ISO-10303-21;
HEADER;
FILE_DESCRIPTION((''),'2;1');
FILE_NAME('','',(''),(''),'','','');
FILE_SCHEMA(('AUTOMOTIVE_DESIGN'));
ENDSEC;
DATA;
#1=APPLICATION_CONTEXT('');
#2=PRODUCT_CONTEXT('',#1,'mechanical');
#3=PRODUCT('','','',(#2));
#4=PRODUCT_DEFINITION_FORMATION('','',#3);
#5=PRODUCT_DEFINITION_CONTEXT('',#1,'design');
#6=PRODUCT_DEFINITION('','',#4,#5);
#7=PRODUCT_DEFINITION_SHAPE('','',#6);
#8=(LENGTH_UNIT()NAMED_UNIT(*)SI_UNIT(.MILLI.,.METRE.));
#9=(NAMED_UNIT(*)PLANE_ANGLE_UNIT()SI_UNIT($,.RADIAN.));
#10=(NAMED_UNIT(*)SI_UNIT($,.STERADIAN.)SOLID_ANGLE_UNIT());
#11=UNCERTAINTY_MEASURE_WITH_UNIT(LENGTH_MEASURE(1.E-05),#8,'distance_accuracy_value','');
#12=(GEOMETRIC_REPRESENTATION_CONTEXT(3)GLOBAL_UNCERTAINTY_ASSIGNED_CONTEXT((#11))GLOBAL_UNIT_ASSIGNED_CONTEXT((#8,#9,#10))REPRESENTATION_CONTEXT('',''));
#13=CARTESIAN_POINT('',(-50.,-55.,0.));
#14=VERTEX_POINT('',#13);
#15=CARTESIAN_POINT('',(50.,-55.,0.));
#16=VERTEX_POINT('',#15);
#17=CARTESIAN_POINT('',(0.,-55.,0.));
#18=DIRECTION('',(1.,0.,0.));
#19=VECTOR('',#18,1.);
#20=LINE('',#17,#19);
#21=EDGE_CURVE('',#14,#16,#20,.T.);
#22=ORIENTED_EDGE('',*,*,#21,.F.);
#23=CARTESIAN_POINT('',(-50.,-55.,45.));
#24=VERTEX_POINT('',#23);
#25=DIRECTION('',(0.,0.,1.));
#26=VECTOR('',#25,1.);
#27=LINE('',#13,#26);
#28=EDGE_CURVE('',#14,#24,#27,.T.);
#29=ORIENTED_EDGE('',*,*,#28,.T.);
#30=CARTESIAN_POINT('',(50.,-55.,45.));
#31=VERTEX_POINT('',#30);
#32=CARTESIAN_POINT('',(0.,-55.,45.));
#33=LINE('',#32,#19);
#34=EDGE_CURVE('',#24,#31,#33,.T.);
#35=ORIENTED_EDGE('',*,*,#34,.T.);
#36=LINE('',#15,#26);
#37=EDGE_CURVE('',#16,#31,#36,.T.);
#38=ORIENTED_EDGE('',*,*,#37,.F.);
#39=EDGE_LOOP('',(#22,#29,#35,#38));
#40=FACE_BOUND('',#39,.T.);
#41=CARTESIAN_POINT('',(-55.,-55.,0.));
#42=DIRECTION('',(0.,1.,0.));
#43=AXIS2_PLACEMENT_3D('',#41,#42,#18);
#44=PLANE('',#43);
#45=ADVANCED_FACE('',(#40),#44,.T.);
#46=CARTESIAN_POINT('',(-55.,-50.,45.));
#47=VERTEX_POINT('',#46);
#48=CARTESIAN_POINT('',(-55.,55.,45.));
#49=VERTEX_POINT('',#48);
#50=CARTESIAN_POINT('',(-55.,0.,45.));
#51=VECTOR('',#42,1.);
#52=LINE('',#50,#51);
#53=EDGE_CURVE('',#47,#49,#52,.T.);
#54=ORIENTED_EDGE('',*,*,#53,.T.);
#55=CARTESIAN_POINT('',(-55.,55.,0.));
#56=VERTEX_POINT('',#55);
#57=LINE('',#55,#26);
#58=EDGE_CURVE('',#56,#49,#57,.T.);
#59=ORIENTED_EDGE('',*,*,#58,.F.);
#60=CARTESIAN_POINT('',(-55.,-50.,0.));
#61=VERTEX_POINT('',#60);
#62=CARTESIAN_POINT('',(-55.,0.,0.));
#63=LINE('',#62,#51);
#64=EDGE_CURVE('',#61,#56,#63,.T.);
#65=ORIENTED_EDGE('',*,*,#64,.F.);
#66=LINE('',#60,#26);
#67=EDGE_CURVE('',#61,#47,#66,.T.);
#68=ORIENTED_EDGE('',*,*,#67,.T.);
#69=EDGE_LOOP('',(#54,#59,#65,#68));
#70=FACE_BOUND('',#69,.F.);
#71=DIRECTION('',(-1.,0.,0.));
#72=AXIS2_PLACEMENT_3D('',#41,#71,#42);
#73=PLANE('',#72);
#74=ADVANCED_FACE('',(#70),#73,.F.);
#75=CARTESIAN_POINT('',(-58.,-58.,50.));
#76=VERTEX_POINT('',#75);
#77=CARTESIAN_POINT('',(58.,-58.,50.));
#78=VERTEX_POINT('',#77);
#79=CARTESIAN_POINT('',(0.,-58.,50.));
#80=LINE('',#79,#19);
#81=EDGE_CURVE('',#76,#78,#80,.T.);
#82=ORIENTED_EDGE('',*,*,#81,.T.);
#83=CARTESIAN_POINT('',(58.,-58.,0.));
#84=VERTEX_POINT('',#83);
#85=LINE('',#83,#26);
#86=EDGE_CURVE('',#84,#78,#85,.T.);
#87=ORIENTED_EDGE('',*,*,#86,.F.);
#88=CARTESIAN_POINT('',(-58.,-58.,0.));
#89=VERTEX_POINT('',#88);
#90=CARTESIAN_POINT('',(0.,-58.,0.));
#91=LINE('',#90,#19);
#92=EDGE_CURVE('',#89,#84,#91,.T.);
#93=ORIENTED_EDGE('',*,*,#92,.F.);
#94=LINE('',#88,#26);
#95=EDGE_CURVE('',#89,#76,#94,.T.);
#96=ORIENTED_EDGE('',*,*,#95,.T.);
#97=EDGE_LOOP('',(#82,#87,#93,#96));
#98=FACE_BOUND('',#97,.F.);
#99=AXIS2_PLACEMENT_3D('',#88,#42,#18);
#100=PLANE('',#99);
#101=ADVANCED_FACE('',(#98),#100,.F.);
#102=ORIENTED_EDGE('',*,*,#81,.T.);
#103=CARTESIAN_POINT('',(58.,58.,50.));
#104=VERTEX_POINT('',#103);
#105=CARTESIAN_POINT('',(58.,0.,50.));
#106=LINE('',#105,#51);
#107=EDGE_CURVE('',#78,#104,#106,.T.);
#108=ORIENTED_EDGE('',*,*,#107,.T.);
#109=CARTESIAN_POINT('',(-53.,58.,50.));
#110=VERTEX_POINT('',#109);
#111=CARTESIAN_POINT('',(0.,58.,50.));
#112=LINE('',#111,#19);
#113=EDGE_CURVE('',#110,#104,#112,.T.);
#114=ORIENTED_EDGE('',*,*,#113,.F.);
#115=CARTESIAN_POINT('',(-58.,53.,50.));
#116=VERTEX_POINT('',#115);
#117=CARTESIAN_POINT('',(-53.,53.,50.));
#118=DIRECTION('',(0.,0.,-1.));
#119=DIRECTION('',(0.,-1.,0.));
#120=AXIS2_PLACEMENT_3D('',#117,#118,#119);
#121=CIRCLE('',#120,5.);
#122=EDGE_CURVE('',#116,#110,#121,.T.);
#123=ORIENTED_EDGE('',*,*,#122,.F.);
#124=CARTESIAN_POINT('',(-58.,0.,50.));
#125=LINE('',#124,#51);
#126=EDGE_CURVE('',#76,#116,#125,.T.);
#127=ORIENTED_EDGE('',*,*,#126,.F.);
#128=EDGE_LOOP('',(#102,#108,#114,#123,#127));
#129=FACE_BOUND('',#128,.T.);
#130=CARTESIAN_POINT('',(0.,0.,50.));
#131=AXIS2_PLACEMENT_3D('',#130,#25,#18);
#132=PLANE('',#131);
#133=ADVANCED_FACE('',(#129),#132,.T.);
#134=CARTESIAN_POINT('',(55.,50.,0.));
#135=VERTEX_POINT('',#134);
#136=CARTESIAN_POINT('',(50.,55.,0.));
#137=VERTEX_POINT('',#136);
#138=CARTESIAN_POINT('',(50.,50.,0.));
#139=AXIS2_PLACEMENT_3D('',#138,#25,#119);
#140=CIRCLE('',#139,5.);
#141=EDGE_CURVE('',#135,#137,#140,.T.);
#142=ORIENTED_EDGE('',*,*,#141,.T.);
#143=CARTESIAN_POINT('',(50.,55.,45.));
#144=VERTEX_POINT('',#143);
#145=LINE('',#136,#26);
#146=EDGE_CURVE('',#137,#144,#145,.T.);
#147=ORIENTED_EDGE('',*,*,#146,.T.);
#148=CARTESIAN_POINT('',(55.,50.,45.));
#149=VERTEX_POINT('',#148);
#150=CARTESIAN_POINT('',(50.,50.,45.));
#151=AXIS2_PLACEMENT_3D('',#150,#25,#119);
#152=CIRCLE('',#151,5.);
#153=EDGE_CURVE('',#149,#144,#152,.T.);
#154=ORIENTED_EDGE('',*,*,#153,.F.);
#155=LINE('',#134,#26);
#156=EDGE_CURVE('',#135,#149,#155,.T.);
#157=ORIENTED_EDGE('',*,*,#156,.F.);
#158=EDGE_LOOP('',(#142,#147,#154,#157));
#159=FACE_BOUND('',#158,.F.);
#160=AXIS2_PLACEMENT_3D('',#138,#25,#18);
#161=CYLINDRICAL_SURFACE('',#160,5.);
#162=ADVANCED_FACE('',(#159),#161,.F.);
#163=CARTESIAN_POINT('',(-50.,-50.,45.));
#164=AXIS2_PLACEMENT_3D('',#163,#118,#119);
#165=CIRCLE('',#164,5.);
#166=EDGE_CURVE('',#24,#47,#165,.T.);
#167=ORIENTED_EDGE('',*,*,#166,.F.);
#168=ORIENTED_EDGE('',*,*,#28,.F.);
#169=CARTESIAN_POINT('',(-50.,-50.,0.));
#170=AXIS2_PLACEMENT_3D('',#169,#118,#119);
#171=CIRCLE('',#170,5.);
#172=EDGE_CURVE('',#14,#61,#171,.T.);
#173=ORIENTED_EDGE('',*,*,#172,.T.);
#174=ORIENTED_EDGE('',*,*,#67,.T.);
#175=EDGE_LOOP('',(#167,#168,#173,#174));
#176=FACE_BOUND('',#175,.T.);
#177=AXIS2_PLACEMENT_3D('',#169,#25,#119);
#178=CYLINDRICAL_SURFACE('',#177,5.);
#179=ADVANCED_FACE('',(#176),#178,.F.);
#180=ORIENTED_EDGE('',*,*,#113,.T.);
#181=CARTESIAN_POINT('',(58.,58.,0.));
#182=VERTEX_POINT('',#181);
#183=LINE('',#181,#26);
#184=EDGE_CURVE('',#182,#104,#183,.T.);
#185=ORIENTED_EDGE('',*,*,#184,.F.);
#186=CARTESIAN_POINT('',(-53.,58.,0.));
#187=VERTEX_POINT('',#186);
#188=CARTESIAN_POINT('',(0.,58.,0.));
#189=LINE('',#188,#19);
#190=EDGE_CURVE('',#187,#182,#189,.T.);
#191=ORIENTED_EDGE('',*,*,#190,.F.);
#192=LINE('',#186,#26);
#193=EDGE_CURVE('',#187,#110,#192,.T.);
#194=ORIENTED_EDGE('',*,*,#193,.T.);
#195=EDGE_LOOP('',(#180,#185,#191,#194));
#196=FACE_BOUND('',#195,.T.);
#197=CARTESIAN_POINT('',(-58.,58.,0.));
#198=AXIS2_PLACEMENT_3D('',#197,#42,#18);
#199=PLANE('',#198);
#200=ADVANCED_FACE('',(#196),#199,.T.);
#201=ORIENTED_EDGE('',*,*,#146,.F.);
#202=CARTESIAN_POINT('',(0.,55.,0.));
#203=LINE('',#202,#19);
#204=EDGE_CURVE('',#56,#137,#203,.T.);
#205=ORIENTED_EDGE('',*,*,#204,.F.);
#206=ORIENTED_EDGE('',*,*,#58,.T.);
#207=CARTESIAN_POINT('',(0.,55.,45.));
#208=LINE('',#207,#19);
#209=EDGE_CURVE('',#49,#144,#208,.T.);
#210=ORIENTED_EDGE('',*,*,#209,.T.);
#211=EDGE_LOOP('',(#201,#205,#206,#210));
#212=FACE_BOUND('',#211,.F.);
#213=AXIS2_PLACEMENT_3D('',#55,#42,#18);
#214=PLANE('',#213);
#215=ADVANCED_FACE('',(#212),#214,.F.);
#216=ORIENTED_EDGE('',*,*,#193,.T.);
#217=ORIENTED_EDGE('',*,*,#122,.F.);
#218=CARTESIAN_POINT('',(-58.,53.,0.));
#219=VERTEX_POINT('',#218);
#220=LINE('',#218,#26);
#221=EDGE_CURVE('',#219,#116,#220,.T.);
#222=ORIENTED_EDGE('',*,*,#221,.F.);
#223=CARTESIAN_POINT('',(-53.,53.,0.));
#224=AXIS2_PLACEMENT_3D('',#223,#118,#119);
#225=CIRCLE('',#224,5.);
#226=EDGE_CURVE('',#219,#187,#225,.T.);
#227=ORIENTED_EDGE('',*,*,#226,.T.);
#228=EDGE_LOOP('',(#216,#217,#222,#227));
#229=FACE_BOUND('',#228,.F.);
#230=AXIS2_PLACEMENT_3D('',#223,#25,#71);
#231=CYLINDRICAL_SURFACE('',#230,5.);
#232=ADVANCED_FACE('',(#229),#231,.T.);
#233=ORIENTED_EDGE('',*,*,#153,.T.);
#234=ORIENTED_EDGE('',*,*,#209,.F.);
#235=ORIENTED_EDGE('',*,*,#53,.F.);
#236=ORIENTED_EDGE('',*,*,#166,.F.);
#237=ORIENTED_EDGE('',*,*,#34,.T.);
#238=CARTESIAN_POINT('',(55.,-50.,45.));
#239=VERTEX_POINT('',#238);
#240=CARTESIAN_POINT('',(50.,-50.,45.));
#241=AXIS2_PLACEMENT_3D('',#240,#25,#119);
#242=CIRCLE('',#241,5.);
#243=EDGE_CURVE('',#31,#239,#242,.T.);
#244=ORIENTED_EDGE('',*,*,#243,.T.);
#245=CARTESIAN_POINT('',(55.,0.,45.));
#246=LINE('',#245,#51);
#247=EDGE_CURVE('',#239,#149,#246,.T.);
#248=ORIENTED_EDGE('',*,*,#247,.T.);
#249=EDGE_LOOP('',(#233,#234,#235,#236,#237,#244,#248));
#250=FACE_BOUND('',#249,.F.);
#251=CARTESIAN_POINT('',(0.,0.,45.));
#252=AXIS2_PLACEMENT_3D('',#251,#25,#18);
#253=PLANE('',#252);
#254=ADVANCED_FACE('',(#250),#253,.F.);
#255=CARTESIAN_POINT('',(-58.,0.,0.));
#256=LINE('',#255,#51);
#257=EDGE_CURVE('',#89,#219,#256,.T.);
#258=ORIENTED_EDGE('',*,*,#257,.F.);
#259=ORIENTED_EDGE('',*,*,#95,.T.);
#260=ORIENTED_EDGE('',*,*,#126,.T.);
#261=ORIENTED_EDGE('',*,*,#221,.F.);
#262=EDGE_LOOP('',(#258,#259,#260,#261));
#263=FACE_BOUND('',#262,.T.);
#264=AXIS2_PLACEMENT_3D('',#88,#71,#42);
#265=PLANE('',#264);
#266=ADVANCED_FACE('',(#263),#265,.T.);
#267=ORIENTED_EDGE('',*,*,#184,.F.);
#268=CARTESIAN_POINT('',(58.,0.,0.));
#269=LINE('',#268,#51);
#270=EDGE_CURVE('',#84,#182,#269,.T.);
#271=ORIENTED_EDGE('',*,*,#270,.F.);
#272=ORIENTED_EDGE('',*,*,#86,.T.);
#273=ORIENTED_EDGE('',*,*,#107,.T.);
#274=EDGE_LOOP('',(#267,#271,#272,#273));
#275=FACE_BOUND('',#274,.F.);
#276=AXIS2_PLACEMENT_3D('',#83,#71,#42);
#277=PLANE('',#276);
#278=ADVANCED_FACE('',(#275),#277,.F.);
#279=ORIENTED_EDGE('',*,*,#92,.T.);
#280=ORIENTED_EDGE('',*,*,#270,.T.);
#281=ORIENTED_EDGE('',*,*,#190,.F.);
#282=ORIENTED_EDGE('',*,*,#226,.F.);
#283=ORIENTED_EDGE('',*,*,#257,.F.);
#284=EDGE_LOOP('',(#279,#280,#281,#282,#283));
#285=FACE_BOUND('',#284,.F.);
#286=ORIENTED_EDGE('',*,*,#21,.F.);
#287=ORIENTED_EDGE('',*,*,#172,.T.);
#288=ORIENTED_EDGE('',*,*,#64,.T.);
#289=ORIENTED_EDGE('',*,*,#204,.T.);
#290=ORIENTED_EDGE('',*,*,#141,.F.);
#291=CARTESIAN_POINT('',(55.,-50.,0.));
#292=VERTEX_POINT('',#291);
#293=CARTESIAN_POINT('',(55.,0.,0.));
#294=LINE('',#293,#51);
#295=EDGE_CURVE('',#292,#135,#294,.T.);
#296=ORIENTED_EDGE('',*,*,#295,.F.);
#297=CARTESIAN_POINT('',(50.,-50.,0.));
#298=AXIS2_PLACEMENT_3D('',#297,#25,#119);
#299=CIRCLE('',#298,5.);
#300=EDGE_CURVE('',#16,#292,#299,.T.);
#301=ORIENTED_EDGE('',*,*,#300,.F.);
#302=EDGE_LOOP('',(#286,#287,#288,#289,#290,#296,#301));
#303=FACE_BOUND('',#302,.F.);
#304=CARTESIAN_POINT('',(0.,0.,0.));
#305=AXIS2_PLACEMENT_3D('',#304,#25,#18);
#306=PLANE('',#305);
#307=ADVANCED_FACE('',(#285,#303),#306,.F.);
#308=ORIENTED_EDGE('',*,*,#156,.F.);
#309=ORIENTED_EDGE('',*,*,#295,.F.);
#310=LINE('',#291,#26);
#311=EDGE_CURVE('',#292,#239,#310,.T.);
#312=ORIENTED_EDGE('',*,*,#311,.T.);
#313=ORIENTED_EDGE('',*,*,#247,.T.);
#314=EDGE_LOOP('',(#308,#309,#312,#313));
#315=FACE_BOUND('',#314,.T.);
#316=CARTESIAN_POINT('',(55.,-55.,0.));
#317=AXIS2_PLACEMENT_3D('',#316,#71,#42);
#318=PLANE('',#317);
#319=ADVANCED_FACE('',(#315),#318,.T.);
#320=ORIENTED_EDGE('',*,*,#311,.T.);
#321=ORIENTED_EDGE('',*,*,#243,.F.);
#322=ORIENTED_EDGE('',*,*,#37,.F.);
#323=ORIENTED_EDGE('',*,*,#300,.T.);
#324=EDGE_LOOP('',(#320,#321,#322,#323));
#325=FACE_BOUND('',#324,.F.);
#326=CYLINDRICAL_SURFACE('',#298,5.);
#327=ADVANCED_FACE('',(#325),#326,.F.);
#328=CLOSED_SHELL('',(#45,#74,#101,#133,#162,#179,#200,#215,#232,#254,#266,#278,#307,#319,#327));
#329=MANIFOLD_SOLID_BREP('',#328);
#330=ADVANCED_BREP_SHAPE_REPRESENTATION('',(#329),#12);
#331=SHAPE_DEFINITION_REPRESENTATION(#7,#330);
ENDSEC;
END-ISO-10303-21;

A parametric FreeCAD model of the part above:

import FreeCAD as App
import Part
import Sketcher
from FreeCAD import Vector


def edges_at(feature, points):
    """Names of the edges that pass closest to the given points."""
    edges = feature.Shape.Edges
    near = lambda p: min(range(len(edges)), key=lambda i: edges[i].distToShape(Part.Vertex(*p))[0])
    return sorted({f"Edge{near(p) + 1}" for p in points})

doc = App.newDocument("Part")
body = doc.addObject("PartDesign::Body", "Body")

# Sketch on XY plane
sketch1 = body.newObject("Sketcher::SketchObject", "Sketch")
sketch1.AttachmentSupport = (doc.getObject("XY_Plane"), [""])
sketch1.MapMode = "FlatFace"
sketch1.addGeometry(Part.LineSegment(Vector(-58, 58, 0), Vector(-58, -58, 0)), False)
sketch1.addGeometry(Part.LineSegment(Vector(-58, -58, 0), Vector(58, -58, 0)), False)
sketch1.addGeometry(Part.LineSegment(Vector(58, -58, 0), Vector(58, 58, 0)), False)
sketch1.addGeometry(Part.LineSegment(Vector(58, 58, 0), Vector(-58, 58, 0)), False)
sketch1.addConstraint(Sketcher.Constraint("Coincident", 0, 2, 1, 1))
sketch1.addConstraint(Sketcher.Constraint("Coincident", 1, 2, 2, 1))
sketch1.addConstraint(Sketcher.Constraint("Coincident", 2, 2, 3, 1))
sketch1.addConstraint(Sketcher.Constraint("Coincident", 3, 2, 0, 1))
sketch1.addConstraint(Sketcher.Constraint("Vertical", 0))
sketch1.addConstraint(Sketcher.Constraint("Horizontal", 1))
sketch1.addConstraint(Sketcher.Constraint("Vertical", 2))
sketch1.addConstraint(Sketcher.Constraint("Horizontal", 3))
sketch1.addConstraint(Sketcher.Constraint("Symmetric", 0, 2, 2, 2, -1, 1))
sketch1.addConstraint(Sketcher.Constraint("Equal", 3, 0))
sketch1.addConstraint(Sketcher.Constraint("DistanceX", 1, 1, 1, 2, 116.0))
pad1 = body.newObject("PartDesign::Pad", "Pad")
pad1.Profile = sketch1
pad1.Length = 50

# Sketch on XY plane
sketch2 = body.newObject("Sketcher::SketchObject", "Sketch001")
sketch2.AttachmentSupport = (doc.getObject("XY_Plane"), [""])
sketch2.MapMode = "FlatFace"
sketch2.addGeometry(Part.LineSegment(Vector(-55, 55, 0), Vector(-55, -55, 0)), False)
sketch2.addGeometry(Part.LineSegment(Vector(-55, -55, 0), Vector(55, -55, 0)), False)
sketch2.addGeometry(Part.LineSegment(Vector(55, -55, 0), Vector(55, 55, 0)), False)
sketch2.addGeometry(Part.LineSegment(Vector(55, 55, 0), Vector(-55, 55, 0)), False)
sketch2.addConstraint(Sketcher.Constraint("Coincident", 0, 2, 1, 1))
sketch2.addConstraint(Sketcher.Constraint("Coincident", 1, 2, 2, 1))
sketch2.addConstraint(Sketcher.Constraint("Coincident", 2, 2, 3, 1))
sketch2.addConstraint(Sketcher.Constraint("Coincident", 3, 2, 0, 1))
sketch2.addConstraint(Sketcher.Constraint("Vertical", 0))
sketch2.addConstraint(Sketcher.Constraint("Horizontal", 1))
sketch2.addConstraint(Sketcher.Constraint("Vertical", 2))
sketch2.addConstraint(Sketcher.Constraint("Horizontal", 3))
sketch2.addConstraint(Sketcher.Constraint("Symmetric", 0, 2, 2, 2, -1, 1))
sketch2.addConstraint(Sketcher.Constraint("Equal", 3, 0))
sketch2.addConstraint(Sketcher.Constraint("DistanceX", 1, 1, 1, 2, 110.0))
pocket1 = body.newObject("PartDesign::Pocket", "Pocket")
pocket1.Profile = sketch2
pocket1.Length = 45
pocket1.Reversed = True
doc.recompute()

fillet = body.newObject("PartDesign::Fillet", "Fillet")
fillet.Base = (pocket1, edges_at(pocket1, [
    (-58, 58, 25),
    (55, 55, 22.5),
    (-55, -55, 22.5),
    (55, -55, 22.5),
]))
fillet.Radius = 5

doc.recompute()
